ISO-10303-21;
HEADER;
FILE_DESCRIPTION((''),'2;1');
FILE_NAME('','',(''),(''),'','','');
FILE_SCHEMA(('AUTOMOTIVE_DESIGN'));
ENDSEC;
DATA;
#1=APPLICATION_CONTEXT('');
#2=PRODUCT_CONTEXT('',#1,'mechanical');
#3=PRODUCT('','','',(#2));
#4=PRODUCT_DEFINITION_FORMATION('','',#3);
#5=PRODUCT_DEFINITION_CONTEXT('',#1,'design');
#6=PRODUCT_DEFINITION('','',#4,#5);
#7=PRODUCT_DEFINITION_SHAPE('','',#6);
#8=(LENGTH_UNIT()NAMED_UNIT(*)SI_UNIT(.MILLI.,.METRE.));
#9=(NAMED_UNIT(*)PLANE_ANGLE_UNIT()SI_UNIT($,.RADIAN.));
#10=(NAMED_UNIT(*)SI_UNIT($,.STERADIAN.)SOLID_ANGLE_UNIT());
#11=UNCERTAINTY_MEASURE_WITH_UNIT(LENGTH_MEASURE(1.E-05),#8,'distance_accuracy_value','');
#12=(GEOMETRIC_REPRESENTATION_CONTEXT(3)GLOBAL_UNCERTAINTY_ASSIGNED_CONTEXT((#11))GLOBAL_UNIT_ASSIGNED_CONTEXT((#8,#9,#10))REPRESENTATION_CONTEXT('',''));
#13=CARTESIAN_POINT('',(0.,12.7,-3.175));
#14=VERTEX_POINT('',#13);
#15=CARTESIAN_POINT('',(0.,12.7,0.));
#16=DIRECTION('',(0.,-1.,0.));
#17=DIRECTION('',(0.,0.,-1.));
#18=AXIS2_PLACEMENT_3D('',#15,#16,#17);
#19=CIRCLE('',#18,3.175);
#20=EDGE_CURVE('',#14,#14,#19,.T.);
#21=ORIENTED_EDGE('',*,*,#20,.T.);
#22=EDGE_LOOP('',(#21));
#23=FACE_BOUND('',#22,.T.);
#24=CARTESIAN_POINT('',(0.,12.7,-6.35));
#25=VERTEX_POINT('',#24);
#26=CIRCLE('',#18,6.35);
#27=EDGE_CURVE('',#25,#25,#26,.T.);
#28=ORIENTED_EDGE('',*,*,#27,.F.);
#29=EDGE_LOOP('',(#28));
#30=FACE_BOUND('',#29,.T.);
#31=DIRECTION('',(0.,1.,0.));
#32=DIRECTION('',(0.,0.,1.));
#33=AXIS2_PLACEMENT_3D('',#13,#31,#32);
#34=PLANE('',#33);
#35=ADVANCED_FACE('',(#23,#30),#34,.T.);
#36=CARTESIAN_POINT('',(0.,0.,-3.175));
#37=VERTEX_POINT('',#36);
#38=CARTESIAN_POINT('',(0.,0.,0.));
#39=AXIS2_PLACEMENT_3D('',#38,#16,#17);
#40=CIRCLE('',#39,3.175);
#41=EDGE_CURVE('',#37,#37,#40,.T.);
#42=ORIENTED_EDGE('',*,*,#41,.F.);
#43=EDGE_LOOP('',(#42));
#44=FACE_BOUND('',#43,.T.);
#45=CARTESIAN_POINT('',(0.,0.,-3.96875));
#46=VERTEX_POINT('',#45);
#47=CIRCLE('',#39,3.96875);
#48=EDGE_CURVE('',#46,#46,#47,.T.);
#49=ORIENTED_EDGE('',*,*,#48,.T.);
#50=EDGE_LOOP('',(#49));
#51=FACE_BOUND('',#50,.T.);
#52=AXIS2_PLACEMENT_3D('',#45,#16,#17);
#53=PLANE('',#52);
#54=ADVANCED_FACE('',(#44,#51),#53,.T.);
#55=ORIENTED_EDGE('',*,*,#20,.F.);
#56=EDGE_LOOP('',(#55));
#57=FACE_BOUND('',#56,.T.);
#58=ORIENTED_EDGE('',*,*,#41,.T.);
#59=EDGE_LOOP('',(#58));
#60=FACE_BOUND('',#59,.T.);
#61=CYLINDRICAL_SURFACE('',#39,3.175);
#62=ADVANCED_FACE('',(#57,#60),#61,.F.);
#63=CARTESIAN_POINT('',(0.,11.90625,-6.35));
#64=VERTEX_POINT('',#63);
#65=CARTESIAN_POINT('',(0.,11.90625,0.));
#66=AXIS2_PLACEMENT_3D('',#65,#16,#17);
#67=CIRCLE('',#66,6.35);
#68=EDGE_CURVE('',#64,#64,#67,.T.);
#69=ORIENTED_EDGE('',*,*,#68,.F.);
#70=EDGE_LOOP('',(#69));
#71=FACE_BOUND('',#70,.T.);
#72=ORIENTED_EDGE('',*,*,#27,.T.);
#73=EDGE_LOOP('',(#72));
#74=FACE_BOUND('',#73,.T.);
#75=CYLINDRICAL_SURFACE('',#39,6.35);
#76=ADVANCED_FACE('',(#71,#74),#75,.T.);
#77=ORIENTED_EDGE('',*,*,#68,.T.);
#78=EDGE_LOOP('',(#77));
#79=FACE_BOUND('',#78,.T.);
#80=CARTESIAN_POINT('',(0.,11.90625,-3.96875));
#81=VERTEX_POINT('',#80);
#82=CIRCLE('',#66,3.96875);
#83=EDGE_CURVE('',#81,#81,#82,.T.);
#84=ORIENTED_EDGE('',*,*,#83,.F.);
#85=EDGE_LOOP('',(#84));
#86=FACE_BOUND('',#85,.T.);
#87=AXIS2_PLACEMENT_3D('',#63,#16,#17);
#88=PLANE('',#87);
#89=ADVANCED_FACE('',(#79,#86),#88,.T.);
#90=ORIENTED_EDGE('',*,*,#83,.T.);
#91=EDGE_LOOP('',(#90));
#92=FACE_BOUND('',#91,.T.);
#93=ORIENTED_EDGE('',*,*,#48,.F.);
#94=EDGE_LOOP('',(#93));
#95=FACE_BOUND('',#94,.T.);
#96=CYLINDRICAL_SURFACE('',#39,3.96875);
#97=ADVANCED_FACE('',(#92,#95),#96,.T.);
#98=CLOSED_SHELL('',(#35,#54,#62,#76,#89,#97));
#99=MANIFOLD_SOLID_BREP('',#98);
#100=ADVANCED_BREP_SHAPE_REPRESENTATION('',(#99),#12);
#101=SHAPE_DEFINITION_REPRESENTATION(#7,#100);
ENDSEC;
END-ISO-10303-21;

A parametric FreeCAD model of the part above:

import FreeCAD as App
import Part
import Sketcher

V = App.Vector
Q = App.Units.Quantity


def add_polygon(sketch, points):
    """Adds a closed chain of lines whose ends are joined by coincident constraints."""
    first, n = sketch.GeometryCount, len(points)
    for a, b in zip(points, points[1:] + points[:1]):
        sketch.addGeometry(Part.LineSegment(App.Vector(*a, 0), App.Vector(*b, 0)), False)
    for i in range(n):
        sketch.addConstraint(Sketcher.Constraint("Coincident", first + i, 2, first + (i + 1) % n, 1))

doc = App.newDocument("Part")
body = doc.addObject("PartDesign::Body", "Body")

# Sketch on YZ plane
sketch1 = body.newObject("Sketcher::SketchObject", "Sketch")
sketch1.AttachmentSupport = (doc.getObject("YZ_Plane"), [""])
sketch1.MapMode = "FlatFace"
add_polygon(sketch1, [(12.7, -3.2), (0, -3.2), (0, -4), (11.9, -4), (11.9, -6.3), (12.7, -6.3)])  # lines 0-5
sketch1.addConstraint(Sketcher.Constraint("Horizontal", 0))
sketch1.addConstraint(Sketcher.Constraint("Vertical", 1))
sketch1.addConstraint(Sketcher.Constraint("Horizontal", 2))
sketch1.addConstraint(Sketcher.Constraint("Vertical", 3))
sketch1.addConstraint(Sketcher.Constraint("Horizontal", 4))
sketch1.addConstraint(Sketcher.Constraint("Vertical", 5))
sketch1.addConstraint(Sketcher.Constraint("PointOnObject", 0, 2, -2))
sketch1.addConstraint(Sketcher.Constraint("Equal", 4, 1))
sketch1.addConstraint(Sketcher.Constraint("DistanceX", 0, 2, 0, 1, Q("0.5 in")))
sketch1.addConstraint(Sketcher.Constraint("DistanceX", 2, 1, 2, 2, Q("0.46875 in")))
sketch1.addConstraint(Sketcher.Constraint("DistanceY", 3, 2, 3, 1, Q("0.09375 in")))
sketch1.addConstraint(Sketcher.Constraint("DistanceY", 3, 2, -1, 1, Q("0.25 in")))
revolution = body.newObject("PartDesign::Revolution", "Revolution")
revolution.Profile = sketch1
revolution.ReferenceAxis = (sketch1, ["H_Axis"])
revolution.Angle = 360

doc.recompute()
